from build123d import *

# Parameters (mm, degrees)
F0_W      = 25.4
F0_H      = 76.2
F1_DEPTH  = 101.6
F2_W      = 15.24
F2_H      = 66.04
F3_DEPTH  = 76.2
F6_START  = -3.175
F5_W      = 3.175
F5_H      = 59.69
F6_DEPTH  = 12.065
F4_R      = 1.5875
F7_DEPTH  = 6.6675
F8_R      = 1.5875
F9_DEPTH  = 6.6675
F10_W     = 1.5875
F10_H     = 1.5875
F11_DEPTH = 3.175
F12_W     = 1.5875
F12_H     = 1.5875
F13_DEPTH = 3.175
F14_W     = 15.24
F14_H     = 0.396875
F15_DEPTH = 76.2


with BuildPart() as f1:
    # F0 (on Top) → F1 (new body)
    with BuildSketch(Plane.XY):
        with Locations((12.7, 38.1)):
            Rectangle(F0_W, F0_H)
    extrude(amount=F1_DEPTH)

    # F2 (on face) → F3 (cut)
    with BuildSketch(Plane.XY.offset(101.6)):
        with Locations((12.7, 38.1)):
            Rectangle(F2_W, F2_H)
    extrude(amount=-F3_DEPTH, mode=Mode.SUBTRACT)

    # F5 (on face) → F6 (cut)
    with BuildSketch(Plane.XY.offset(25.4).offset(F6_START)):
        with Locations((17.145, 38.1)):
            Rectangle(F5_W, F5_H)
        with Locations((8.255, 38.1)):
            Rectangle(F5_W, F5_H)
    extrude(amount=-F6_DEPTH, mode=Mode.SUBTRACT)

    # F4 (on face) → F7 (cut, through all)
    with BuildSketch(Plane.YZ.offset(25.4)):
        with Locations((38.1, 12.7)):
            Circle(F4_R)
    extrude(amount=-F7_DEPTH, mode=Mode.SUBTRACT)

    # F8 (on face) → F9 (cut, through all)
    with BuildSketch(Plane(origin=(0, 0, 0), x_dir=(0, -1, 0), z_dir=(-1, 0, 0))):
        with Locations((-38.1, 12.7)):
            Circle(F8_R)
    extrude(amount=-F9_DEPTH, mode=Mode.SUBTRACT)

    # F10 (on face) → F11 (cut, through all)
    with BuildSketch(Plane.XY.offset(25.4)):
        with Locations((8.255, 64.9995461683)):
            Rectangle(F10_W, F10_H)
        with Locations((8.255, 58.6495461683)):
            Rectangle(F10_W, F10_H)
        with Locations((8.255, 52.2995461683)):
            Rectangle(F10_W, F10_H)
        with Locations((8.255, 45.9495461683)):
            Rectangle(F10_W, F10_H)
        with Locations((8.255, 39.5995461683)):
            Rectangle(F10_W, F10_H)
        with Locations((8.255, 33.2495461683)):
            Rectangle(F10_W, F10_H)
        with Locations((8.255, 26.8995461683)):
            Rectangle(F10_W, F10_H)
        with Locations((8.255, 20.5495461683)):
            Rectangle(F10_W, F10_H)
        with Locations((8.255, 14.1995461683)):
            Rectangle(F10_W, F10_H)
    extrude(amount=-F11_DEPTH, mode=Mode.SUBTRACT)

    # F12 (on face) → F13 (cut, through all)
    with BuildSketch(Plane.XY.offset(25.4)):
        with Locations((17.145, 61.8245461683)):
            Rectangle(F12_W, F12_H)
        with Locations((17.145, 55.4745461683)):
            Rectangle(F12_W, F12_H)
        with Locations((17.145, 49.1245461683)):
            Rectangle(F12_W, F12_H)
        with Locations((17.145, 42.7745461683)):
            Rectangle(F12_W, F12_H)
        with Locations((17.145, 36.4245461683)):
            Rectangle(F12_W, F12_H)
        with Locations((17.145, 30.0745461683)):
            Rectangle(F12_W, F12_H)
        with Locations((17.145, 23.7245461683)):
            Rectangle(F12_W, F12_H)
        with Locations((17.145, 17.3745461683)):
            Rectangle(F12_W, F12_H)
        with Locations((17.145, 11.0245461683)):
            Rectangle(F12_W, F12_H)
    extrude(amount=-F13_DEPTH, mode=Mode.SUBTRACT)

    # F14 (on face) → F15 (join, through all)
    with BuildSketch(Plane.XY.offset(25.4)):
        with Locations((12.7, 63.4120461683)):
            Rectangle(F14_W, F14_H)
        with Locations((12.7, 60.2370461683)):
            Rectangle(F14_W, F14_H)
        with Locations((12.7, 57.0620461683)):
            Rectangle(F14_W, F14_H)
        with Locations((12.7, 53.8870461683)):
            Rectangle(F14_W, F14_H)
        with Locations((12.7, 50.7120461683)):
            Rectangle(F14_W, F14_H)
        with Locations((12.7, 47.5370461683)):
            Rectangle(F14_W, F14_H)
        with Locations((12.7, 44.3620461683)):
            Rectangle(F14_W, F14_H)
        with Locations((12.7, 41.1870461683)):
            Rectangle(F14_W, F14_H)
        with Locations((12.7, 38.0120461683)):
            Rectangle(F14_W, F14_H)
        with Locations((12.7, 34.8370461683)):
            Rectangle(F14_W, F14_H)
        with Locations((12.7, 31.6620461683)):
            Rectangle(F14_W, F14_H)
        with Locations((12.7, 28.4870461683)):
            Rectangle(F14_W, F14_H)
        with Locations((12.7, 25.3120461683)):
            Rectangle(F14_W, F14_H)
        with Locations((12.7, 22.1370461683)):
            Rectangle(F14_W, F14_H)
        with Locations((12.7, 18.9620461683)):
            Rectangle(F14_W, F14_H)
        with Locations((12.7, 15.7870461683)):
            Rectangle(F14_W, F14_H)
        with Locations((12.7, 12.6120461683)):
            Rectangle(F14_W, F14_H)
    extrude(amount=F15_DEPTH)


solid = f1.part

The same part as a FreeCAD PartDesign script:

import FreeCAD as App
import Part
import Sketcher
Q = App.Units.Quantity

doc = App.newDocument("Part")
params = doc.addObject("Spreadsheet::Sheet", "Params")
for row, (alias, value) in enumerate([
    ("sketch1_width", "1 in"),
    ("sketch1_height", "3 in"),
    ("pad1_length", "4 in"),
    ("sketch2_width", "0.6 in"),
    ("sketch2_height", "2.6 in"),
    ("pocket1_length", "3 in"),
    ("sketch3_height", "2.35 in"),
    ("sketch3_width", "0.125 in"),
    ("pocket2_length", "0.475 in"),
    ("sketch4_diameter", "0.125 in"),
    ("pocket3_length", "0.2625 in"),
    ("sketch5_diameter", "0.125 in"),
    ("pocket4_length", "0.2625 in"),
    ("sketch6_width", "0.0625 in"),
    ("pocket5_length", "0.125 in"),
    ("sketch7_width", "0.0625 in"),
    ("pocket6_length", "0.125 in"),
    ("sketch8_width", "0.6 in"),
    ("sketch8_height", "0.015625 in"),
    ("pad2_length", "3 in"),
], start=1):
    params.set(f"A{row}", alias)
    params.set(f"B{row}", "=" + value)
    params.setAlias(f"B{row}", alias)

body = doc.addObject("PartDesign::Body", "Body")

sketch1 = doc.addObject("Sketcher::SketchObject", "Sketch")
body.addObject(sketch1)
sketch1.AttachmentSupport = (doc.XY_Plane, [""])
sketch1.MapMode = "FlatFace"
sketch1.addGeometry([
    Part.LineSegment(App.Vector(0, 76.2, 0), App.Vector(0, 0, 0)),
    Part.LineSegment(App.Vector(0, 0, 0), App.Vector(25.4, 0, 0)),
    Part.LineSegment(App.Vector(25.4, 0, 0), App.Vector(25.4, 76.2, 0)),
    Part.LineSegment(App.Vector(25.4, 76.2, 0), App.Vector(0, 76.2, 0)),
], False)
sketch1.addConstraint([
    Sketcher.Constraint("Coincident", 0, 2, 1, 1),
    Sketcher.Constraint("Coincident", 1, 2, 2, 1),
    Sketcher.Constraint("Coincident", 2, 2, 3, 1),
    Sketcher.Constraint("Coincident", 3, 2, 0, 1),
    Sketcher.Constraint("Vertical", 0),
    Sketcher.Constraint("Horizontal", 1),
    Sketcher.Constraint("Vertical", 2),
    Sketcher.Constraint("Horizontal", 3),
    Sketcher.Constraint("Coincident", 0, 2, -1, 1),
    Sketcher.Constraint("DistanceX", 1, 1, 1, 2, Q("1 in")),
    Sketcher.Constraint("DistanceY", 0, 2, 0, 1, Q("3 in")),
])
sketch1.setExpression("Constraints[9]", "Params.sketch1_width")
sketch1.setExpression("Constraints[10]", "Params.sketch1_height")
pad1 = doc.addObject("PartDesign::Pad", "Pad")
body.addObject(pad1)
pad1.Profile = sketch1
pad1.setExpression("Length", "Params.pad1_length")

sketch2 = doc.addObject("Sketcher::SketchObject", "Sketch001")
body.addObject(sketch2)
sketch2.AttachmentSupport = (doc.XY_Plane, [""])
sketch2.MapMode = "FlatFace"
sketch2.AttachmentOffset = App.Placement(App.Vector(0, 0, 4 * 25.4), App.Rotation())
sketch2.addGeometry([
    Part.LineSegment(App.Vector(5.08, 71.12, 0), App.Vector(5.08, 5.08, 0)),
    Part.LineSegment(App.Vector(5.08, 5.08, 0), App.Vector(20.32, 5.08, 0)),
    Part.LineSegment(App.Vector(20.32, 5.08, 0), App.Vector(20.32, 71.12, 0)),
    Part.LineSegment(App.Vector(20.32, 71.12, 0), App.Vector(5.08, 71.12, 0)),
], False)
sketch2.addConstraint([
    Sketcher.Constraint("Coincident", 0, 2, 1, 1),
    Sketcher.Constraint("Coincident", 1, 2, 2, 1),
    Sketcher.Constraint("Coincident", 2, 2, 3, 1),
    Sketcher.Constraint("Coincident", 3, 2, 0, 1),
    Sketcher.Constraint("Vertical", 0),
    Sketcher.Constraint("Horizontal", 1),
    Sketcher.Constraint("Vertical", 2),
    Sketcher.Constraint("Horizontal", 3),
    Sketcher.Constraint("DistanceX", 1, 1, 1, 2, Q("0.6 in")),
    Sketcher.Constraint("DistanceY", 0, 2, 0, 1, Q("2.6 in")),
    Sketcher.Constraint("DistanceX", -1, 1, 0, 2, Q("0.2 in")),
    Sketcher.Constraint("DistanceY", -1, 1, 0, 2, Q("0.2 in")),
])
sketch2.setExpression("Constraints[8]", "Params.sketch2_width")
sketch2.setExpression("Constraints[9]", "Params.sketch2_height")
pocket1 = doc.addObject("PartDesign::Pocket", "Pocket")
body.addObject(pocket1)
pocket1.Profile = sketch2
pocket1.setExpression("Length", "Params.pocket1_length")

sketch3 = doc.addObject("Sketcher::SketchObject", "Sketch002")
body.addObject(sketch3)
sketch3.AttachmentSupport = (doc.XY_Plane, [""])
sketch3.MapMode = "FlatFace"
sketch3.AttachmentOffset = App.Placement(App.Vector(0, 0, 0.875 * 25.4), App.Rotation())
sketch3.addGeometry([
    Part.LineSegment(App.Vector(15.5575, 67.945, 0), App.Vector(15.5575, 8.255, 0)),
    Part.LineSegment(App.Vector(15.5575, 8.255, 0), App.Vector(18.7325, 8.255, 0)),
    Part.LineSegment(App.Vector(18.7325, 8.255, 0), App.Vector(18.7325, 67.945, 0)),
    Part.LineSegment(App.Vector(18.7325, 67.945, 0), App.Vector(15.5575, 67.945, 0)),
    Part.LineSegment(App.Vector(6.6675, 67.945, 0), App.Vector(6.6675, 8.255, 0)),
    Part.LineSegment(App.Vector(6.6675, 8.255, 0), App.Vector(9.8425, 8.255, 0)),
    Part.LineSegment(App.Vector(9.8425, 8.255, 0), App.Vector(9.8425, 67.945, 0)),
    Part.LineSegment(App.Vector(9.8425, 67.945, 0), App.Vector(6.6675, 67.945, 0)),
], False)
sketch3.addConstraint([
    Sketcher.Constraint("Coincident", 0, 2, 1, 1),
    Sketcher.Constraint("Coincident", 1, 2, 2, 1),
    Sketcher.Constraint("Coincident", 2, 2, 3, 1),
    Sketcher.Constraint("Coincident", 3, 2, 0, 1),
    Sketcher.Constraint("Coincident", 4, 2, 5, 1),
    Sketcher.Constraint("Coincident", 5, 2, 6, 1),
    Sketcher.Constraint("Coincident", 6, 2, 7, 1),
    Sketcher.Constraint("Coincident", 7, 2, 4, 1),
    Sketcher.Constraint("Vertical", 0),
    Sketcher.Constraint("Horizontal", 1),
    Sketcher.Constraint("Vertical", 2),
    Sketcher.Constraint("Horizontal", 3),
    Sketcher.Constraint("Vertical", 4),
    Sketcher.Constraint("Horizontal", 5),
    Sketcher.Constraint("Vertical", 6),
    Sketcher.Constraint("Horizontal", 7),
    Sketcher.Constraint("Horizontal", 1, 2, 4, 2),
    Sketcher.Constraint("Horizontal", 3, 2, 6, 2),
    Sketcher.Constraint("Equal", 3, 5),
    Sketcher.Constraint("DistanceY", 0, 2, 0, 1, Q("2.35 in")),
    Sketcher.Constraint("DistanceX", 1, 1, 1, 2, Q("0.125 in")),
    Sketcher.Constraint("DistanceX", 4, 2, 0, 2, Q("0.35 in")),
    Sketcher.Constraint("DistanceY", -1, 1, 0, 2, Q("0.325 in")),
    Sketcher.Constraint("DistanceX", -1, 1, 0, 2, Q("0.6125 in")),
])
sketch3.setExpression("Constraints[19]", "Params.sketch3_height")
sketch3.setExpression("Constraints[20]", "Params.sketch3_width")
pocket2 = doc.addObject("PartDesign::Pocket", "Pocket001")
body.addObject(pocket2)
pocket2.Profile = sketch3
pocket2.setExpression("Length", "Params.pocket2_length")

sketch4 = doc.addObject("Sketcher::SketchObject", "Sketch003")
body.addObject(sketch4)
sketch4.AttachmentSupport = (doc.YZ_Plane, [""])
sketch4.MapMode = "FlatFace"
sketch4.AttachmentOffset = App.Placement(App.Vector(0, 0, 1 * 25.4), App.Rotation())
sketch4.addGeometry(Part.Circle(App.Vector(38.1, 12.7, 0), App.Vector(0, 0, 1), 1.5875), False)
sketch4.addConstraint([
    Sketcher.Constraint("Diameter", 0, Q("0.125 in")),
    Sketcher.Constraint("DistanceX", -1, 1, 0, 3, Q("1.5 in")),
    Sketcher.Constraint("DistanceY", -1, 1, 0, 3, Q("0.5 in")),
])
sketch4.setExpression("Constraints[0]", "Params.sketch4_diameter")
pocket3 = doc.addObject("PartDesign::Pocket", "Pocket002")
body.addObject(pocket3)
pocket3.Profile = sketch4
pocket3.setExpression("Length", "Params.pocket3_length")

sketch5 = doc.addObject("Sketcher::SketchObject", "Sketch004")
body.addObject(sketch5)
sketch5.AttachmentSupport = (doc.YZ_Plane, [""])
sketch5.MapMode = "FlatFace"
sketch5.addGeometry(Part.Circle(App.Vector(38.1, 12.7, 0), App.Vector(0, 0, 1), 1.5875), False)
sketch5.addConstraint([
    Sketcher.Constraint("Diameter", 0, Q("0.125 in")),
    Sketcher.Constraint("DistanceX", -1, 1, 0, 3, Q("1.5 in")),
    Sketcher.Constraint("DistanceY", -1, 1, 0, 3, Q("0.5 in")),
])
sketch5.setExpression("Constraints[0]", "Params.sketch5_diameter")
pocket4 = doc.addObject("PartDesign::Pocket", "Pocket003")
body.addObject(pocket4)
pocket4.Profile = sketch5
pocket4.setExpression("Length", "Params.pocket4_length")
pocket4.Reversed = True

sketch6 = doc.addObject("Sketcher::SketchObject", "Sketch005")
body.addObject(sketch6)
sketch6.AttachmentSupport = (doc.XY_Plane, [""])
sketch6.MapMode = "FlatFace"
sketch6.AttachmentOffset = App.Placement(App.Vector(0, 0, 1 * 25.4), App.Rotation())
sketch6.addGeometry([
    Part.LineSegment(App.Vector(7.46125, 65.793296, 0), App.Vector(7.46125, 64.205796, 0)),
    Part.LineSegment(App.Vector(7.46125, 64.205796, 0), App.Vector(9.04875, 64.205796, 0)),
    Part.LineSegment(App.Vector(9.04875, 64.205796, 0), App.Vector(9.04875, 65.793296, 0)),
    Part.LineSegment(App.Vector(9.04875, 65.793296, 0), App.Vector(7.46125, 65.793296, 0)),
    Part.LineSegment(App.Vector(7.46125, 59.443296, 0), App.Vector(7.46125, 57.855796, 0)),
    Part.LineSegment(App.Vector(7.46125, 57.855796, 0), App.Vector(9.04875, 57.855796, 0)),
    Part.LineSegment(App.Vector(9.04875, 57.855796, 0), App.Vector(9.04875, 59.443296, 0)),
    Part.LineSegment(App.Vector(9.04875, 59.443296, 0), App.Vector(7.46125, 59.443296, 0)),
    Part.LineSegment(App.Vector(7.46125, 53.093296, 0), App.Vector(7.46125, 51.505796, 0)),
    Part.LineSegment(App.Vector(7.46125, 51.505796, 0), App.Vector(9.04875, 51.505796, 0)),
    Part.LineSegment(App.Vector(9.04875, 51.505796, 0), App.Vector(9.04875, 53.093296, 0)),
    Part.LineSegment(App.Vector(9.04875, 53.093296, 0), App.Vector(7.46125, 53.093296, 0)),
    Part.LineSegment(App.Vector(7.46125, 46.743296, 0), App.Vector(7.46125, 45.155796, 0)),
    Part.LineSegment(App.Vector(7.46125, 45.155796, 0), App.Vector(9.04875, 45.155796, 0)),
    Part.LineSegment(App.Vector(9.04875, 45.155796, 0), App.Vector(9.04875, 46.743296, 0)),
    Part.LineSegment(App.Vector(9.04875, 46.743296, 0), App.Vector(7.46125, 46.743296, 0)),
    Part.LineSegment(App.Vector(7.46125, 40.393296, 0), App.Vector(7.46125, 38.805796, 0)),
    Part.LineSegment(App.Vector(7.46125, 38.805796, 0), App.Vector(9.04875, 38.805796, 0)),
    Part.LineSegment(App.Vector(9.04875, 38.805796, 0), App.Vector(9.04875, 40.393296, 0)),
    Part.LineSegment(App.Vector(9.04875, 40.393296, 0), App.Vector(7.46125, 40.393296, 0)),
    Part.LineSegment(App.Vector(7.46125, 34.043296, 0), App.Vector(7.46125, 32.455796, 0)),
    Part.LineSegment(App.Vector(7.46125, 32.455796, 0), App.Vector(9.04875, 32.455796, 0)),
    Part.LineSegment(App.Vector(9.04875, 32.455796, 0), App.Vector(9.04875, 34.043296, 0)),
    Part.LineSegment(App.Vector(9.04875, 34.043296, 0), App.Vector(7.46125, 34.043296, 0)),
    Part.LineSegment(App.Vector(7.46125, 27.693296, 0), App.Vector(7.46125, 26.105796, 0)),
    Part.LineSegment(App.Vector(7.46125, 26.105796, 0), App.Vector(9.04875, 26.105796, 0)),
    Part.LineSegment(App.Vector(9.04875, 26.105796, 0), App.Vector(9.04875, 27.693296, 0)),
    Part.LineSegment(App.Vector(9.04875, 27.693296, 0), App.Vector(7.46125, 27.693296, 0)),
    Part.LineSegment(App.Vector(7.46125, 21.343296, 0), App.Vector(7.46125, 19.755796, 0)),
    Part.LineSegment(App.Vector(7.46125, 19.755796, 0), App.Vector(9.04875, 19.755796, 0)),
    Part.LineSegment(App.Vector(9.04875, 19.755796, 0), App.Vector(9.04875, 21.343296, 0)),
    Part.LineSegment(App.Vector(9.04875, 21.343296, 0), App.Vector(7.46125, 21.343296, 0)),
    Part.LineSegment(App.Vector(7.46125, 14.993296, 0), App.Vector(7.46125, 13.405796, 0)),
    Part.LineSegment(App.Vector(7.46125, 13.405796, 0), App.Vector(9.04875, 13.405796, 0)),
    Part.LineSegment(App.Vector(9.04875, 13.405796, 0), App.Vector(9.04875, 14.993296, 0)),
    Part.LineSegment(App.Vector(9.04875, 14.993296, 0), App.Vector(7.46125, 14.993296, 0)),
], False)
sketch6.addConstraint([
    Sketcher.Constraint("Coincident", 0, 2, 1, 1),
    Sketcher.Constraint("Coincident", 1, 2, 2, 1),
    Sketcher.Constraint("Coincident", 2, 2, 3, 1),
    Sketcher.Constraint("Coincident", 3, 2, 0, 1),
    Sketcher.Constraint("Coincident", 4, 2, 5, 1),
    Sketcher.Constraint("Coincident", 5, 2, 6, 1),
    Sketcher.Constraint("Coincident", 6, 2, 7, 1),
    Sketcher.Constraint("Coincident", 7, 2, 4, 1),
    Sketcher.Constraint("Coincident", 8, 2, 9, 1),
    Sketcher.Constraint("Coincident", 9, 2, 10, 1),
    Sketcher.Constraint("Coincident", 10, 2, 11, 1),
    Sketcher.Constraint("Coincident", 11, 2, 8, 1),
    Sketcher.Constraint("Coincident", 12, 2, 13, 1),
    Sketcher.Constraint("Coincident", 13, 2, 14, 1),
    Sketcher.Constraint("Coincident", 14, 2, 15, 1),
    Sketcher.Constraint("Coincident", 15, 2, 12, 1),
    Sketcher.Constraint("Coincident", 16, 2, 17, 1),
    Sketcher.Constraint("Coincident", 17, 2, 18, 1),
    Sketcher.Constraint("Coincident", 18, 2, 19, 1),
    Sketcher.Constraint("Coincident", 19, 2, 16, 1),
    Sketcher.Constraint("Coincident", 20, 2, 21, 1),
    Sketcher.Constraint("Coincident", 21, 2, 22, 1),
    Sketcher.Constraint("Coincident", 22, 2, 23, 1),
    Sketcher.Constraint("Coincident", 23, 2, 20, 1),
    Sketcher.Constraint("Coincident", 24, 2, 25, 1),
    Sketcher.Constraint("Coincident", 25, 2, 26, 1),
    Sketcher.Constraint("Coincident", 26, 2, 27, 1),
    Sketcher.Constraint("Coincident", 27, 2, 24, 1),
    Sketcher.Constraint("Coincident", 28, 2, 29, 1),
    Sketcher.Constraint("Coincident", 29, 2, 30, 1),
    Sketcher.Constraint("Coincident", 30, 2, 31, 1),
    Sketcher.Constraint("Coincident", 31, 2, 28, 1),
    Sketcher.Constraint("Coincident", 32, 2, 33, 1),
    Sketcher.Constraint("Coincident", 33, 2, 34, 1),
    Sketcher.Constraint("Coincident", 34, 2, 35, 1),
    Sketcher.Constraint("Coincident", 35, 2, 32, 1),
    Sketcher.Constraint("Vertical", 0),
    Sketcher.Constraint("Horizontal", 1),
    Sketcher.Constraint("Vertical", 2),
    Sketcher.Constraint("Horizontal", 3),
    Sketcher.Constraint("Vertical", 4),
    Sketcher.Constraint("Horizontal", 5),
    Sketcher.Constraint("Vertical", 6),
    Sketcher.Constraint("Horizontal", 7),
    Sketcher.Constraint("Vertical", 8),
    Sketcher.Constraint("Horizontal", 9),
    Sketcher.Constraint("Vertical", 10),
    Sketcher.Constraint("Horizontal", 11),
    Sketcher.Constraint("Vertical", 12),
    Sketcher.Constraint("Horizontal", 13),
    Sketcher.Constraint("Vertical", 14),
    Sketcher.Constraint("Horizontal", 15),
    Sketcher.Constraint("Vertical", 16),
    Sketcher.Constraint("Horizontal", 17),
    Sketcher.Constraint("Vertical", 18),
    Sketcher.Constraint("Horizontal", 19),
    Sketcher.Constraint("Vertical", 20),
    Sketcher.Constraint("Horizontal", 21),
    Sketcher.Constraint("Vertical", 22),
    Sketcher.Constraint("Horizontal", 23),
    Sketcher.Constraint("Vertical", 24),
    Sketcher.Constraint("Horizontal", 25),
    Sketcher.Constraint("Vertical", 26),
    Sketcher.Constraint("Horizontal", 27),
    Sketcher.Constraint("Vertical", 28),
    Sketcher.Constraint("Horizontal", 29),
    Sketcher.Constraint("Vertical", 30),
    Sketcher.Constraint("Horizontal", 31),
    Sketcher.Constraint("Vertical", 32),
    Sketcher.Constraint("Horizontal", 33),
    Sketcher.Constraint("Vertical", 34),
    Sketcher.Constraint("Horizontal", 35),
    Sketcher.Constraint("Vertical", 3, 2, 4, 2),
    Sketcher.Constraint("Vertical", 2, 2, 5, 2),
    Sketcher.Constraint("Vertical", 7, 2, 8, 2),
    Sketcher.Constraint("Vertical", 6, 2, 9, 2),
    Sketcher.Constraint("Vertical", 11, 2, 12, 2),
    Sketcher.Constraint("Vertical", 10, 2, 13, 2),
    Sketcher.Constraint("Vertical", 15, 2, 16, 2),
    Sketcher.Constraint("Vertical", 14, 2, 17, 2),
    Sketcher.Constraint("Vertical", 19, 2, 20, 2),
    Sketcher.Constraint("Vertical", 18, 2, 21, 2),
    Sketcher.Constraint("Vertical", 23, 2, 24, 2),
    Sketcher.Constraint("Vertical", 22, 2, 25, 2),
    Sketcher.Constraint("Vertical", 27, 2, 28, 2),
    Sketcher.Constraint("Vertical", 26, 2, 29, 2),
    Sketcher.Constraint("Vertical", 31, 2, 32, 2),
    Sketcher.Constraint("Vertical", 30, 2, 33, 2),
    Sketcher.Constraint("Equal", 35, 0),
    Sketcher.Constraint("Equal", 2, 4),
    Sketcher.Constraint("Equal", 6, 8),
    Sketcher.Constraint("Equal", 10, 12),
    Sketcher.Constraint("Equal", 14, 16),
    Sketcher.Constraint("Equal", 18, 20),
    Sketcher.Constraint("Equal", 22, 24),
    Sketcher.Constraint("Equal", 26, 28),
    Sketcher.Constraint("Equal", 30, 32),
    Sketcher.Constraint("DistanceY", 8, 2, 0, 2, Q("0.5 in")),
    Sketcher.Constraint("DistanceY", 12, 2, 4, 2, Q("0.5 in")),
    Sketcher.Constraint("DistanceY", 16, 2, 8, 2, Q("0.5 in")),
    Sketcher.Constraint("DistanceY", 20, 2, 12, 2, Q("0.5 in")),
    Sketcher.Constraint("DistanceY", 24, 2, 16, 2, Q("0.5 in")),
    Sketcher.Constraint("DistanceY", 28, 2, 20, 2, Q("0.5 in")),
    Sketcher.Constraint("DistanceY", 32, 2, 24, 2, Q("0.5 in")),
    Sketcher.Constraint("DistanceX", 1, 1, 1, 2, Q("0.0625 in")),
    Sketcher.Constraint("DistanceY", 4, 2, 0, 2, Q("0.25 in")),
    Sketcher.Constraint("DistanceX", -1, 1, 0, 2, Q("7.46125 mm")),
    Sketcher.Constraint("DistanceY", -1, 1, 0, 2, Q("64.205796 mm")),
])
sketch6.setExpression("Constraints[104]", "Params.sketch6_width")
pocket5 = doc.addObject("PartDesign::Pocket", "Pocket004")
body.addObject(pocket5)
pocket5.Profile = sketch6
pocket5.setExpression("Length", "Params.pocket5_length")

sketch7 = doc.addObject("Sketcher::SketchObject", "Sketch006")
body.addObject(sketch7)
sketch7.AttachmentSupport = (doc.XY_Plane, [""])
sketch7.MapMode = "FlatFace"
sketch7.AttachmentOffset = App.Placement(App.Vector(0, 0, 1 * 25.4), App.Rotation())
sketch7.addGeometry([
    Part.LineSegment(App.Vector(16.35125, 62.618296, 0), App.Vector(16.35125, 61.030796, 0)),
    Part.LineSegment(App.Vector(16.35125, 61.030796, 0), App.Vector(17.93875, 61.030796, 0)),
    Part.LineSegment(App.Vector(17.93875, 61.030796, 0), App.Vector(17.93875, 62.618296, 0)),
    Part.LineSegment(App.Vector(17.93875, 62.618296, 0), App.Vector(16.35125, 62.618296, 0)),
    Part.LineSegment(App.Vector(16.35125, 56.268296, 0), App.Vector(16.35125, 54.680796, 0)),
    Part.LineSegment(App.Vector(16.35125, 54.680796, 0), App.Vector(17.93875, 54.680796, 0)),
    Part.LineSegment(App.Vector(17.93875, 54.680796, 0), App.Vector(17.93875, 56.268296, 0)),
    Part.LineSegment(App.Vector(17.93875, 56.268296, 0), App.Vector(16.35125, 56.268296, 0)),
    Part.LineSegment(App.Vector(16.35125, 49.918296, 0), App.Vector(16.35125, 48.330796, 0)),
    Part.LineSegment(App.Vector(16.35125, 48.330796, 0), App.Vector(17.93875, 48.330796, 0)),
    Part.LineSegment(App.Vector(17.93875, 48.330796, 0), App.Vector(17.93875, 49.918296, 0)),
    Part.LineSegment(App.Vector(17.93875, 49.918296, 0), App.Vector(16.35125, 49.918296, 0)),
    Part.LineSegment(App.Vector(16.35125, 43.568296, 0), App.Vector(16.35125, 41.980796, 0)),
    Part.LineSegment(App.Vector(16.35125, 41.980796, 0), App.Vector(17.93875, 41.980796, 0)),
    Part.LineSegment(App.Vector(17.93875, 41.980796, 0), App.Vector(17.93875, 43.568296, 0)),
    Part.LineSegment(App.Vector(17.93875, 43.568296, 0), App.Vector(16.35125, 43.568296, 0)),
    Part.LineSegment(App.Vector(16.35125, 37.218296, 0), App.Vector(16.35125, 35.630796, 0)),
    Part.LineSegment(App.Vector(16.35125, 35.630796, 0), App.Vector(17.93875, 35.630796, 0)),
    Part.LineSegment(App.Vector(17.93875, 35.630796, 0), App.Vector(17.93875, 37.218296, 0)),
    Part.LineSegment(App.Vector(17.93875, 37.218296, 0), App.Vector(16.35125, 37.218296, 0)),
    Part.LineSegment(App.Vector(16.35125, 30.868296, 0), App.Vector(16.35125, 29.280796, 0)),
    Part.LineSegment(App.Vector(16.35125, 29.280796, 0), App.Vector(17.93875, 29.280796, 0)),
    Part.LineSegment(App.Vector(17.93875, 29.280796, 0), App.Vector(17.93875, 30.868296, 0)),
    Part.LineSegment(App.Vector(17.93875, 30.868296, 0), App.Vector(16.35125, 30.868296, 0)),
    Part.LineSegment(App.Vector(16.35125, 24.518296, 0), App.Vector(16.35125, 22.930796, 0)),
    Part.LineSegment(App.Vector(16.35125, 22.930796, 0), App.Vector(17.93875, 22.930796, 0)),
    Part.LineSegment(App.Vector(17.93875, 22.930796, 0), App.Vector(17.93875, 24.518296, 0)),
    Part.LineSegment(App.Vector(17.93875, 24.518296, 0), App.Vector(16.35125, 24.518296, 0)),
    Part.LineSegment(App.Vector(16.35125, 18.168296, 0), App.Vector(16.35125, 16.580796, 0)),
    Part.LineSegment(App.Vector(16.35125, 16.580796, 0), App.Vector(17.93875, 16.580796, 0)),
    Part.LineSegment(App.Vector(17.93875, 16.580796, 0), App.Vector(17.93875, 18.168296, 0)),
    Part.LineSegment(App.Vector(17.93875, 18.168296, 0), App.Vector(16.35125, 18.168296, 0)),
    Part.LineSegment(App.Vector(16.35125, 11.818296, 0), App.Vector(16.35125, 10.230796, 0)),
    Part.LineSegment(App.Vector(16.35125, 10.230796, 0), App.Vector(17.93875, 10.230796, 0)),
    Part.LineSegment(App.Vector(17.93875, 10.230796, 0), App.Vector(17.93875, 11.818296, 0)),
    Part.LineSegment(App.Vector(17.93875, 11.818296, 0), App.Vector(16.35125, 11.818296, 0)),
], False)
sketch7.addConstraint([
    Sketcher.Constraint("Coincident", 0, 2, 1, 1),
    Sketcher.Constraint("Coincident", 1, 2, 2, 1),
    Sketcher.Constraint("Coincident", 2, 2, 3, 1),
    Sketcher.Constraint("Coincident", 3, 2, 0, 1),
    Sketcher.Constraint("Coincident", 4, 2, 5, 1),
    Sketcher.Constraint("Coincident", 5, 2, 6, 1),
    Sketcher.Constraint("Coincident", 6, 2, 7, 1),
    Sketcher.Constraint("Coincident", 7, 2, 4, 1),
    Sketcher.Constraint("Coincident", 8, 2, 9, 1),
    Sketcher.Constraint("Coincident", 9, 2, 10, 1),
    Sketcher.Constraint("Coincident", 10, 2, 11, 1),
    Sketcher.Constraint("Coincident", 11, 2, 8, 1),
    Sketcher.Constraint("Coincident", 12, 2, 13, 1),
    Sketcher.Constraint("Coincident", 13, 2, 14, 1),
    Sketcher.Constraint("Coincident", 14, 2, 15, 1),
    Sketcher.Constraint("Coincident", 15, 2, 12, 1),
    Sketcher.Constraint("Coincident", 16, 2, 17, 1),
    Sketcher.Constraint("Coincident", 17, 2, 18, 1),
    Sketcher.Constraint("Coincident", 18, 2, 19, 1),
    Sketcher.Constraint("Coincident", 19, 2, 16, 1),
    Sketcher.Constraint("Coincident", 20, 2, 21, 1),
    Sketcher.Constraint("Coincident", 21, 2, 22, 1),
    Sketcher.Constraint("Coincident", 22, 2, 23, 1),
    Sketcher.Constraint("Coincident", 23, 2, 20, 1),
    Sketcher.Constraint("Coincident", 24, 2, 25, 1),
    Sketcher.Constraint("Coincident", 25, 2, 26, 1),
    Sketcher.Constraint("Coincident", 26, 2, 27, 1),
    Sketcher.Constraint("Coincident", 27, 2, 24, 1),
    Sketcher.Constraint("Coincident", 28, 2, 29, 1),
    Sketcher.Constraint("Coincident", 29, 2, 30, 1),
    Sketcher.Constraint("Coincident", 30, 2, 31, 1),
    Sketcher.Constraint("Coincident", 31, 2, 28, 1),
    Sketcher.Constraint("Coincident", 32, 2, 33, 1),
    Sketcher.Constraint("Coincident", 33, 2, 34, 1),
    Sketcher.Constraint("Coincident", 34, 2, 35, 1),
    Sketcher.Constraint("Coincident", 35, 2, 32, 1),
    Sketcher.Constraint("Vertical", 0),
    Sketcher.Constraint("Horizontal", 1),
    Sketcher.Constraint("Vertical", 2),
    Sketcher.Constraint("Horizontal", 3),
    Sketcher.Constraint("Vertical", 4),
    Sketcher.Constraint("Horizontal", 5),
    Sketcher.Constraint("Vertical", 6),
    Sketcher.Constraint("Horizontal", 7),
    Sketcher.Constraint("Vertical", 8),
    Sketcher.Constraint("Horizontal", 9),
    Sketcher.Constraint("Vertical", 10),
    Sketcher.Constraint("Horizontal", 11),
    Sketcher.Constraint("Vertical", 12),
    Sketcher.Constraint("Horizontal", 13),
    Sketcher.Constraint("Vertical", 14),
    Sketcher.Constraint("Horizontal", 15),
    Sketcher.Constraint("Vertical", 16),
    Sketcher.Constraint("Horizontal", 17),
    Sketcher.Constraint("Vertical", 18),
    Sketcher.Constraint("Horizontal", 19),
    Sketcher.Constraint("Vertical", 20),
    Sketcher.Constraint("Horizontal", 21),
    Sketcher.Constraint("Vertical", 22),
    Sketcher.Constraint("Horizontal", 23),
    Sketcher.Constraint("Vertical", 24),
    Sketcher.Constraint("Horizontal", 25),
    Sketcher.Constraint("Vertical", 26),
    Sketcher.Constraint("Horizontal", 27),
    Sketcher.Constraint("Vertical", 28),
    Sketcher.Constraint("Horizontal", 29),
    Sketcher.Constraint("Vertical", 30),
    Sketcher.Constraint("Horizontal", 31),
    Sketcher.Constraint("Vertical", 32),
    Sketcher.Constraint("Horizontal", 33),
    Sketcher.Constraint("Vertical", 34),
    Sketcher.Constraint("Horizontal", 35),
    Sketcher.Constraint("Vertical", 3, 2, 4, 2),
    Sketcher.Constraint("Vertical", 2, 2, 5, 2),
    Sketcher.Constraint("Vertical", 7, 2, 8, 2),
    Sketcher.Constraint("Vertical", 6, 2, 9, 2),
    Sketcher.Constraint("Vertical", 11, 2, 12, 2),
    Sketcher.Constraint("Vertical", 10, 2, 13, 2),
    Sketcher.Constraint("Vertical", 15, 2, 16, 2),
    Sketcher.Constraint("Vertical", 14, 2, 17, 2),
    Sketcher.Constraint("Vertical", 19, 2, 20, 2),
    Sketcher.Constraint("Vertical", 18, 2, 21, 2),
    Sketcher.Constraint("Vertical", 23, 2, 24, 2),
    Sketcher.Constraint("Vertical", 22, 2, 25, 2),
    Sketcher.Constraint("Vertical", 27, 2, 28, 2),
    Sketcher.Constraint("Vertical", 26, 2, 29, 2),
    Sketcher.Constraint("Vertical", 31, 2, 32, 2),
    Sketcher.Constraint("Vertical", 30, 2, 33, 2),
    Sketcher.Constraint("Equal", 35, 0),
    Sketcher.Constraint("Equal", 2, 4),
    Sketcher.Constraint("Equal", 6, 8),
    Sketcher.Constraint("Equal", 10, 12),
    Sketcher.Constraint("Equal", 14, 16),
    Sketcher.Constraint("Equal", 18, 20),
    Sketcher.Constraint("Equal", 22, 24),
    Sketcher.Constraint("Equal", 26, 28),
    Sketcher.Constraint("Equal", 30, 32),
    Sketcher.Constraint("DistanceY", 8, 2, 0, 2, Q("0.5 in")),
    Sketcher.Constraint("DistanceY", 12, 2, 4, 2, Q("0.5 in")),
    Sketcher.Constraint("DistanceY", 16, 2, 8, 2, Q("0.5 in")),
    Sketcher.Constraint("DistanceY", 20, 2, 12, 2, Q("0.5 in")),
    Sketcher.Constraint("DistanceY", 24, 2, 16, 2, Q("0.5 in")),
    Sketcher.Constraint("DistanceY", 28, 2, 20, 2, Q("0.5 in")),
    Sketcher.Constraint("DistanceY", 32, 2, 24, 2, Q("0.5 in")),
    Sketcher.Constraint("DistanceX", 1, 1, 1, 2, Q("0.0625 in")),
    Sketcher.Constraint("DistanceY", 4, 2, 0, 2, Q("0.25 in")),
    Sketcher.Constraint("DistanceX", -1, 1, 0, 2, Q("16.35125 mm")),
    Sketcher.Constraint("DistanceY", -1, 1, 0, 2, Q("61.030796 mm")),
])
sketch7.setExpression("Constraints[104]", "Params.sketch7_width")
pocket6 = doc.addObject("PartDesign::Pocket", "Pocket005")
body.addObject(pocket6)
pocket6.Profile = sketch7
pocket6.setExpression("Length", "Params.pocket6_length")

sketch8 = doc.addObject("Sketcher::SketchObject", "Sketch007")
body.addObject(sketch8)
sketch8.AttachmentSupport = (doc.XY_Plane, [""])
sketch8.MapMode = "FlatFace"
sketch8.AttachmentOffset = App.Placement(App.Vector(0, 0, 1 * 25.4), App.Rotation())
sketch8.addGeometry([
    Part.LineSegment(App.Vector(5.08, 63.610484, 0), App.Vector(5.08, 63.213609, 0)),
    Part.LineSegment(App.Vector(5.08, 63.213609, 0), App.Vector(20.32, 63.213609, 0)),
    Part.LineSegment(App.Vector(20.32, 63.213609, 0), App.Vector(20.32, 63.610484, 0)),
    Part.LineSegment(App.Vector(20.32, 63.610484, 0), App.Vector(5.08, 63.610484, 0)),
    Part.LineSegment(App.Vector(5.08, 60.435484, 0), App.Vector(5.08, 60.038609, 0)),
    Part.LineSegment(App.Vector(5.08, 60.038609, 0), App.Vector(20.32, 60.038609, 0)),
    Part.LineSegment(App.Vector(20.32, 60.038609, 0), App.Vector(20.32, 60.435484, 0)),
    Part.LineSegment(App.Vector(20.32, 60.435484, 0), App.Vector(5.08, 60.435484, 0)),
    Part.LineSegment(App.Vector(5.08, 57.260484, 0), App.Vector(5.08, 56.863609, 0)),
    Part.LineSegment(App.Vector(5.08, 56.863609, 0), App.Vector(20.32, 56.863609, 0)),
    Part.LineSegment(App.Vector(20.32, 56.863609, 0), App.Vector(20.32, 57.260484, 0)),
    Part.LineSegment(App.Vector(20.32, 57.260484, 0), App.Vector(5.08, 57.260484, 0)),
    Part.LineSegment(App.Vector(5.08, 54.085484, 0), App.Vector(5.08, 53.688609, 0)),
    Part.LineSegment(App.Vector(5.08, 53.688609, 0), App.Vector(20.32, 53.688609, 0)),
    Part.LineSegment(App.Vector(20.32, 53.688609, 0), App.Vector(20.32, 54.085484, 0)),
    Part.LineSegment(App.Vector(20.32, 54.085484, 0), App.Vector(5.08, 54.085484, 0)),
    Part.LineSegment(App.Vector(5.08, 50.910484, 0), App.Vector(5.08, 50.513609, 0)),
    Part.LineSegment(App.Vector(5.08, 50.513609, 0), App.Vector(20.32, 50.513609, 0)),
    Part.LineSegment(App.Vector(20.32, 50.513609, 0), App.Vector(20.32, 50.910484, 0)),
    Part.LineSegment(App.Vector(20.32, 50.910484, 0), App.Vector(5.08, 50.910484, 0)),
    Part.LineSegment(App.Vector(5.08, 47.735484, 0), App.Vector(5.08, 47.338609, 0)),
    Part.LineSegment(App.Vector(5.08, 47.338609, 0), App.Vector(20.32, 47.338609, 0)),
    Part.LineSegment(App.Vector(20.32, 47.338609, 0), App.Vector(20.32, 47.735484, 0)),
    Part.LineSegment(App.Vector(20.32, 47.735484, 0), App.Vector(5.08, 47.735484, 0)),
    Part.LineSegment(App.Vector(5.08, 44.560484, 0), App.Vector(5.08, 44.163609, 0)),
    Part.LineSegment(App.Vector(5.08, 44.163609, 0), App.Vector(20.32, 44.163609, 0)),
    Part.LineSegment(App.Vector(20.32, 44.163609, 0), App.Vector(20.32, 44.560484, 0)),
    Part.LineSegment(App.Vector(20.32, 44.560484, 0), App.Vector(5.08, 44.560484, 0)),
    Part.LineSegment(App.Vector(5.08, 41.385484, 0), App.Vector(5.08, 40.988609, 0)),
    Part.LineSegment(App.Vector(5.08, 40.988609, 0), App.Vector(20.32, 40.988609, 0)),
    Part.LineSegment(App.Vector(20.32, 40.988609, 0), App.Vector(20.32, 41.385484, 0)),
    Part.LineSegment(App.Vector(20.32, 41.385484, 0), App.Vector(5.08, 41.385484, 0)),
    Part.LineSegment(App.Vector(5.08, 38.210484, 0), App.Vector(5.08, 37.813609, 0)),
    Part.LineSegment(App.Vector(5.08, 37.813609, 0), App.Vector(20.32, 37.813609, 0)),
    Part.LineSegment(App.Vector(20.32, 37.813609, 0), App.Vector(20.32, 38.210484, 0)),
    Part.LineSegment(App.Vector(20.32, 38.210484, 0), App.Vector(5.08, 38.210484, 0)),
    Part.LineSegment(App.Vector(5.08, 35.035484, 0), App.Vector(5.08, 34.638609, 0)),
    Part.LineSegment(App.Vector(5.08, 34.638609, 0), App.Vector(20.32, 34.638609, 0)),
    Part.LineSegment(App.Vector(20.32, 34.638609, 0), App.Vector(20.32, 35.035484, 0)),
    Part.LineSegment(App.Vector(20.32, 35.035484, 0), App.Vector(5.08, 35.035484, 0)),
    Part.LineSegment(App.Vector(5.08, 31.860484, 0), App.Vector(5.08, 31.463609, 0)),
    Part.LineSegment(App.Vector(5.08, 31.463609, 0), App.Vector(20.32, 31.463609, 0)),
    Part.LineSegment(App.Vector(20.32, 31.463609, 0), App.Vector(20.32, 31.860484, 0)),
    Part.LineSegment(App.Vector(20.32, 31.860484, 0), App.Vector(5.08, 31.860484, 0)),
    Part.LineSegment(App.Vector(5.08, 28.685484, 0), App.Vector(5.08, 28.288609, 0)),
    Part.LineSegment(App.Vector(5.08, 28.288609, 0), App.Vector(20.32, 28.288609, 0)),
    Part.LineSegment(App.Vector(20.32, 28.288609, 0), App.Vector(20.32, 28.685484, 0)),
    Part.LineSegment(App.Vector(20.32, 28.685484, 0), App.Vector(5.08, 28.685484, 0)),
    Part.LineSegment(App.Vector(5.08, 25.510484, 0), App.Vector(5.08, 25.113609, 0)),
    Part.LineSegment(App.Vector(5.08, 25.113609, 0), App.Vector(20.32, 25.113609, 0)),
    Part.LineSegment(App.Vector(20.32, 25.113609, 0), App.Vector(20.32, 25.510484, 0)),
    Part.LineSegment(App.Vector(20.32, 25.510484, 0), App.Vector(5.08, 25.510484, 0)),
    Part.LineSegment(App.Vector(5.08, 22.335484, 0), App.Vector(5.08, 21.938609, 0)),
    Part.LineSegment(App.Vector(5.08, 21.938609, 0), App.Vector(20.32, 21.938609, 0)),
    Part.LineSegment(App.Vector(20.32, 21.938609, 0), App.Vector(20.32, 22.335484, 0)),
    Part.LineSegment(App.Vector(20.32, 22.335484, 0), App.Vector(5.08, 22.335484, 0)),
    Part.LineSegment(App.Vector(5.08, 19.160484, 0), App.Vector(5.08, 18.763609, 0)),
    Part.LineSegment(App.Vector(5.08, 18.763609, 0), App.Vector(20.32, 18.763609, 0)),
    Part.LineSegment(App.Vector(20.32, 18.763609, 0), App.Vector(20.32, 19.160484, 0)),
    Part.LineSegment(App.Vector(20.32, 19.160484, 0), App.Vector(5.08, 19.160484, 0)),
    Part.LineSegment(App.Vector(5.08, 15.985484, 0), App.Vector(5.08, 15.588609, 0)),
    Part.LineSegment(App.Vector(5.08, 15.588609, 0), App.Vector(20.32, 15.588609, 0)),
    Part.LineSegment(App.Vector(20.32, 15.588609, 0), App.Vector(20.32, 15.985484, 0)),
    Part.LineSegment(App.Vector(20.32, 15.985484, 0), App.Vector(5.08, 15.985484, 0)),
    Part.LineSegment(App.Vector(5.08, 12.810484, 0), App.Vector(5.08, 12.413609, 0)),
    Part.LineSegment(App.Vector(5.08, 12.413609, 0), App.Vector(20.32, 12.413609, 0)),
    Part.LineSegment(App.Vector(20.32, 12.413609, 0), App.Vector(20.32, 12.810484, 0)),
    Part.LineSegment(App.Vector(20.32, 12.810484, 0), App.Vector(5.08, 12.810484, 0)),
], False)
sketch8.addConstraint([
    Sketcher.Constraint("Coincident", 0, 2, 1, 1),
    Sketcher.Constraint("Coincident", 1, 2, 2, 1),
    Sketcher.Constraint("Coincident", 2, 2, 3, 1),
    Sketcher.Constraint("Coincident", 3, 2, 0, 1),
    Sketcher.Constraint("Coincident", 4, 2, 5, 1),
    Sketcher.Constraint("Coincident", 5, 2, 6, 1),
    Sketcher.Constraint("Coincident", 6, 2, 7, 1),
    Sketcher.Constraint("Coincident", 7, 2, 4, 1),
    Sketcher.Constraint("Coincident", 8, 2, 9, 1),
    Sketcher.Constraint("Coincident", 9, 2, 10, 1),
    Sketcher.Constraint("Coincident", 10, 2, 11, 1),
    Sketcher.Constraint("Coincident", 11, 2, 8, 1),
    Sketcher.Constraint("Coincident", 12, 2, 13, 1),
    Sketcher.Constraint("Coincident", 13, 2, 14, 1),
    Sketcher.Constraint("Coincident", 14, 2, 15, 1),
    Sketcher.Constraint("Coincident", 15, 2, 12, 1),
    Sketcher.Constraint("Coincident", 16, 2, 17, 1),
    Sketcher.Constraint("Coincident", 17, 2, 18, 1),
    Sketcher.Constraint("Coincident", 18, 2, 19, 1),
    Sketcher.Constraint("Coincident", 19, 2, 16, 1),
    Sketcher.Constraint("Coincident", 20, 2, 21, 1),
    Sketcher.Constraint("Coincident", 21, 2, 22, 1),
    Sketcher.Constraint("Coincident", 22, 2, 23, 1),
    Sketcher.Constraint("Coincident", 23, 2, 20, 1),
    Sketcher.Constraint("Coincident", 24, 2, 25, 1),
    Sketcher.Constraint("Coincident", 25, 2, 26, 1),
    Sketcher.Constraint("Coincident", 26, 2, 27, 1),
    Sketcher.Constraint("Coincident", 27, 2, 24, 1),
    Sketcher.Constraint("Coincident", 28, 2, 29, 1),
    Sketcher.Constraint("Coincident", 29, 2, 30, 1),
    Sketcher.Constraint("Coincident", 30, 2, 31, 1),
    Sketcher.Constraint("Coincident", 31, 2, 28, 1),
    Sketcher.Constraint("Coincident", 32, 2, 33, 1),
    Sketcher.Constraint("Coincident", 33, 2, 34, 1),
    Sketcher.Constraint("Coincident", 34, 2, 35, 1),
    Sketcher.Constraint("Coincident", 35, 2, 32, 1),
    Sketcher.Constraint("Coincident", 36, 2, 37, 1),
    Sketcher.Constraint("Coincident", 37, 2, 38, 1),
    Sketcher.Constraint("Coincident", 38, 2, 39, 1),
    Sketcher.Constraint("Coincident", 39, 2, 36, 1),
    Sketcher.Constraint("Coincident", 40, 2, 41, 1),
    Sketcher.Constraint("Coincident", 41, 2, 42, 1),
    Sketcher.Constraint("Coincident", 42, 2, 43, 1),
    Sketcher.Constraint("Coincident", 43, 2, 40, 1),
    Sketcher.Constraint("Coincident", 44, 2, 45, 1),
    Sketcher.Constraint("Coincident", 45, 2, 46, 1),
    Sketcher.Constraint("Coincident", 46, 2, 47, 1),
    Sketcher.Constraint("Coincident", 47, 2, 44, 1),
    Sketcher.Constraint("Coincident", 48, 2, 49, 1),
    Sketcher.Constraint("Coincident", 49, 2, 50, 1),
    Sketcher.Constraint("Coincident", 50, 2, 51, 1),
    Sketcher.Constraint("Coincident", 51, 2, 48, 1),
    Sketcher.Constraint("Coincident", 52, 2, 53, 1),
    Sketcher.Constraint("Coincident", 53, 2, 54, 1),
    Sketcher.Constraint("Coincident", 54, 2, 55, 1),
    Sketcher.Constraint("Coincident", 55, 2, 52, 1),
    Sketcher.Constraint("Coincident", 56, 2, 57, 1),
    Sketcher.Constraint("Coincident", 57, 2, 58, 1),
    Sketcher.Constraint("Coincident", 58, 2, 59, 1),
    Sketcher.Constraint("Coincident", 59, 2, 56, 1),
    Sketcher.Constraint("Coincident", 60, 2, 61, 1),
    Sketcher.Constraint("Coincident", 61, 2, 62, 1),
    Sketcher.Constraint("Coincident", 62, 2, 63, 1),
    Sketcher.Constraint("Coincident", 63, 2, 60, 1),
    Sketcher.Constraint("Coincident", 64, 2, 65, 1),
    Sketcher.Constraint("Coincident", 65, 2, 66, 1),
    Sketcher.Constraint("Coincident", 66, 2, 67, 1),
    Sketcher.Constraint("Coincident", 67, 2, 64, 1),
    Sketcher.Constraint("Vertical", 0),
    Sketcher.Constraint("Horizontal", 1),
    Sketcher.Constraint("Vertical", 2),
    Sketcher.Constraint("Horizontal", 3),
    Sketcher.Constraint("Vertical", 4),
    Sketcher.Constraint("Horizontal", 5),
    Sketcher.Constraint("Vertical", 6),
    Sketcher.Constraint("Horizontal", 7),
    Sketcher.Constraint("Vertical", 8),
    Sketcher.Constraint("Horizontal", 9),
    Sketcher.Constraint("Vertical", 10),
    Sketcher.Constraint("Horizontal", 11),
    Sketcher.Constraint("Vertical", 12),
    Sketcher.Constraint("Horizontal", 13),
    Sketcher.Constraint("Vertical", 14),
    Sketcher.Constraint("Horizontal", 15),
    Sketcher.Constraint("Vertical", 16),
    Sketcher.Constraint("Horizontal", 17),
    Sketcher.Constraint("Vertical", 18),
    Sketcher.Constraint("Horizontal", 19),
    Sketcher.Constraint("Vertical", 20),
    Sketcher.Constraint("Horizontal", 21),
    Sketcher.Constraint("Vertical", 22),
    Sketcher.Constraint("Horizontal", 23),
    Sketcher.Constraint("Vertical", 24),
    Sketcher.Constraint("Horizontal", 25),
    Sketcher.Constraint("Vertical", 26),
    Sketcher.Constraint("Horizontal", 27),
    Sketcher.Constraint("Vertical", 28),
    Sketcher.Constraint("Horizontal", 29),
    Sketcher.Constraint("Vertical", 30),
    Sketcher.Constraint("Horizontal", 31),
    Sketcher.Constraint("Vertical", 32),
    Sketcher.Constraint("Horizontal", 33),
    Sketcher.Constraint("Vertical", 34),
    Sketcher.Constraint("Horizontal", 35),
    Sketcher.Constraint("Vertical", 36),
    Sketcher.Constraint("Horizontal", 37),
    Sketcher.Constraint("Vertical", 38),
    Sketcher.Constraint("Horizontal", 39),
    Sketcher.Constraint("Vertical", 40),
    Sketcher.Constraint("Horizontal", 41),
    Sketcher.Constraint("Vertical", 42),
    Sketcher.Constraint("Horizontal", 43),
    Sketcher.Constraint("Vertical", 44),
    Sketcher.Constraint("Horizontal", 45),
    Sketcher.Constraint("Vertical", 46),
    Sketcher.Constraint("Horizontal", 47),
    Sketcher.Constraint("Vertical", 48),
    Sketcher.Constraint("Horizontal", 49),
    Sketcher.Constraint("Vertical", 50),
    Sketcher.Constraint("Horizontal", 51),
    Sketcher.Constraint("Vertical", 52),
    Sketcher.Constraint("Horizontal", 53),
    Sketcher.Constraint("Vertical", 54),
    Sketcher.Constraint("Horizontal", 55),
    Sketcher.Constraint("Vertical", 56),
    Sketcher.Constraint("Horizontal", 57),
    Sketcher.Constraint("Vertical", 58),
    Sketcher.Constraint("Horizontal", 59),
    Sketcher.Constraint("Vertical", 60),
    Sketcher.Constraint("Horizontal", 61),
    Sketcher.Constraint("Vertical", 62),
    Sketcher.Constraint("Horizontal", 63),
    Sketcher.Constraint("Vertical", 64),
    Sketcher.Constraint("Horizontal", 65),
    Sketcher.Constraint("Vertical", 66),
    Sketcher.Constraint("Horizontal", 67),
    Sketcher.Constraint("Vertical", 3, 2, 4, 2),
    Sketcher.Constraint("Vertical", 2, 2, 5, 2),
    Sketcher.Constraint("Vertical", 7, 2, 8, 2),
    Sketcher.Constraint("Vertical", 6, 2, 9, 2),
    Sketcher.Constraint("Vertical", 11, 2, 12, 2),
    Sketcher.Constraint("Vertical", 10, 2, 13, 2),
    Sketcher.Constraint("Vertical", 15, 2, 16, 2),
    Sketcher.Constraint("Vertical", 14, 2, 17, 2),
    Sketcher.Constraint("Vertical", 19, 2, 20, 2),
    Sketcher.Constraint("Vertical", 18, 2, 21, 2),
    Sketcher.Constraint("Vertical", 23, 2, 24, 2),
    Sketcher.Constraint("Vertical", 22, 2, 25, 2),
    Sketcher.Constraint("Vertical", 27, 2, 28, 2),
    Sketcher.Constraint("Vertical", 26, 2, 29, 2),
    Sketcher.Constraint("Vertical", 31, 2, 32, 2),
    Sketcher.Constraint("Vertical", 30, 2, 33, 2),
    Sketcher.Constraint("Vertical", 35, 2, 36, 2),
    Sketcher.Constraint("Vertical", 34, 2, 37, 2),
    Sketcher.Constraint("Vertical", 39, 2, 40, 2),
    Sketcher.Constraint("Vertical", 38, 2, 41, 2),
    Sketcher.Constraint("Vertical", 43, 2, 44, 2),
    Sketcher.Constraint("Vertical", 42, 2, 45, 2),
    Sketcher.Constraint("Vertical", 47, 2, 48, 2),
    Sketcher.Constraint("Vertical", 46, 2, 49, 2),
    Sketcher.Constraint("Vertical", 51, 2, 52, 2),
    Sketcher.Constraint("Vertical", 50, 2, 53, 2),
    Sketcher.Constraint("Vertical", 55, 2, 56, 2),
    Sketcher.Constraint("Vertical", 54, 2, 57, 2),
    Sketcher.Constraint("Vertical", 59, 2, 60, 2),
    Sketcher.Constraint("Vertical", 58, 2, 61, 2),
    Sketcher.Constraint("Vertical", 63, 2, 64, 2),
    Sketcher.Constraint("Vertical", 62, 2, 65, 2),
    Sketcher.Constraint("Equal", 2, 4),
    Sketcher.Constraint("Equal", 6, 8),
    Sketcher.Constraint("Equal", 10, 12),
    Sketcher.Constraint("Equal", 14, 16),
    Sketcher.Constraint("Equal", 18, 20),
    Sketcher.Constraint("Equal", 22, 24),
    Sketcher.Constraint("Equal", 26, 28),
    Sketcher.Constraint("Equal", 30, 32),
    Sketcher.Constraint("Equal", 34, 36),
    Sketcher.Constraint("Equal", 38, 40),
    Sketcher.Constraint("Equal", 42, 44),
    Sketcher.Constraint("Equal", 46, 48),
    Sketcher.Constraint("Equal", 50, 52),
    Sketcher.Constraint("Equal", 54, 56),
    Sketcher.Constraint("Equal", 58, 60),
    Sketcher.Constraint("Equal", 62, 64),
    Sketcher.Constraint("DistanceX", 1, 1, 1, 2, Q("0.6 in")),
    Sketcher.Constraint("DistanceX", -1, 1, 0, 2, Q("0.2 in")),
    Sketcher.Constraint("DistanceY", 0, 2, 0, 1, Q("0.015625 in")),
    Sketcher.Constraint("DistanceY", -1, 1, 0, 2, Q("63.213609 mm")),
    Sketcher.Constraint("DistanceY", -1, 1, 4, 2, Q("60.038609 mm")),
    Sketcher.Constraint("DistanceY", -1, 1, 8, 2, Q("56.863609 mm")),
    Sketcher.Constraint("DistanceY", -1, 1, 12, 2, Q("53.688609 mm")),
    Sketcher.Constraint("DistanceY", -1, 1, 16, 2, Q("50.513609 mm")),
    Sketcher.Constraint("DistanceY", -1, 1, 20, 2, Q("47.338609 mm")),
    Sketcher.Constraint("DistanceY", -1, 1, 24, 2, Q("44.163609 mm")),
    Sketcher.Constraint("DistanceY", -1, 1, 28, 2, Q("40.988609 mm")),
    Sketcher.Constraint("DistanceY", -1, 1, 32, 2, Q("37.813609 mm")),
    Sketcher.Constraint("DistanceY", -1, 1, 36, 2, Q("34.638609 mm")),
    Sketcher.Constraint("DistanceY", -1, 1, 40, 2, Q("31.463609 mm")),
    Sketcher.Constraint("DistanceY", -1, 1, 44, 2, Q("28.288609 mm")),
    Sketcher.Constraint("DistanceY", -1, 1, 48, 2, Q("25.113609 mm")),
    Sketcher.Constraint("DistanceY", -1, 1, 52, 2, Q("21.938609 mm")),
    Sketcher.Constraint("DistanceY", -1, 1, 56, 2, Q("18.763609 mm")),
    Sketcher.Constraint("DistanceY", -1, 1, 60, 2, Q("15.588609 mm")),
    Sketcher.Constraint("DistanceY", -1, 1, 64, 2, Q("12.413609 mm")),
])
sketch8.setExpression("Constraints[184]", "Params.sketch8_width")
sketch8.setExpression("Constraints[186]", "Params.sketch8_height")
pad2 = doc.addObject("PartDesign::Pad", "Pad001")
body.addObject(pad2)
pad2.Profile = sketch8
pad2.setExpression("Length", "Params.pad2_length")

doc.recompute()
